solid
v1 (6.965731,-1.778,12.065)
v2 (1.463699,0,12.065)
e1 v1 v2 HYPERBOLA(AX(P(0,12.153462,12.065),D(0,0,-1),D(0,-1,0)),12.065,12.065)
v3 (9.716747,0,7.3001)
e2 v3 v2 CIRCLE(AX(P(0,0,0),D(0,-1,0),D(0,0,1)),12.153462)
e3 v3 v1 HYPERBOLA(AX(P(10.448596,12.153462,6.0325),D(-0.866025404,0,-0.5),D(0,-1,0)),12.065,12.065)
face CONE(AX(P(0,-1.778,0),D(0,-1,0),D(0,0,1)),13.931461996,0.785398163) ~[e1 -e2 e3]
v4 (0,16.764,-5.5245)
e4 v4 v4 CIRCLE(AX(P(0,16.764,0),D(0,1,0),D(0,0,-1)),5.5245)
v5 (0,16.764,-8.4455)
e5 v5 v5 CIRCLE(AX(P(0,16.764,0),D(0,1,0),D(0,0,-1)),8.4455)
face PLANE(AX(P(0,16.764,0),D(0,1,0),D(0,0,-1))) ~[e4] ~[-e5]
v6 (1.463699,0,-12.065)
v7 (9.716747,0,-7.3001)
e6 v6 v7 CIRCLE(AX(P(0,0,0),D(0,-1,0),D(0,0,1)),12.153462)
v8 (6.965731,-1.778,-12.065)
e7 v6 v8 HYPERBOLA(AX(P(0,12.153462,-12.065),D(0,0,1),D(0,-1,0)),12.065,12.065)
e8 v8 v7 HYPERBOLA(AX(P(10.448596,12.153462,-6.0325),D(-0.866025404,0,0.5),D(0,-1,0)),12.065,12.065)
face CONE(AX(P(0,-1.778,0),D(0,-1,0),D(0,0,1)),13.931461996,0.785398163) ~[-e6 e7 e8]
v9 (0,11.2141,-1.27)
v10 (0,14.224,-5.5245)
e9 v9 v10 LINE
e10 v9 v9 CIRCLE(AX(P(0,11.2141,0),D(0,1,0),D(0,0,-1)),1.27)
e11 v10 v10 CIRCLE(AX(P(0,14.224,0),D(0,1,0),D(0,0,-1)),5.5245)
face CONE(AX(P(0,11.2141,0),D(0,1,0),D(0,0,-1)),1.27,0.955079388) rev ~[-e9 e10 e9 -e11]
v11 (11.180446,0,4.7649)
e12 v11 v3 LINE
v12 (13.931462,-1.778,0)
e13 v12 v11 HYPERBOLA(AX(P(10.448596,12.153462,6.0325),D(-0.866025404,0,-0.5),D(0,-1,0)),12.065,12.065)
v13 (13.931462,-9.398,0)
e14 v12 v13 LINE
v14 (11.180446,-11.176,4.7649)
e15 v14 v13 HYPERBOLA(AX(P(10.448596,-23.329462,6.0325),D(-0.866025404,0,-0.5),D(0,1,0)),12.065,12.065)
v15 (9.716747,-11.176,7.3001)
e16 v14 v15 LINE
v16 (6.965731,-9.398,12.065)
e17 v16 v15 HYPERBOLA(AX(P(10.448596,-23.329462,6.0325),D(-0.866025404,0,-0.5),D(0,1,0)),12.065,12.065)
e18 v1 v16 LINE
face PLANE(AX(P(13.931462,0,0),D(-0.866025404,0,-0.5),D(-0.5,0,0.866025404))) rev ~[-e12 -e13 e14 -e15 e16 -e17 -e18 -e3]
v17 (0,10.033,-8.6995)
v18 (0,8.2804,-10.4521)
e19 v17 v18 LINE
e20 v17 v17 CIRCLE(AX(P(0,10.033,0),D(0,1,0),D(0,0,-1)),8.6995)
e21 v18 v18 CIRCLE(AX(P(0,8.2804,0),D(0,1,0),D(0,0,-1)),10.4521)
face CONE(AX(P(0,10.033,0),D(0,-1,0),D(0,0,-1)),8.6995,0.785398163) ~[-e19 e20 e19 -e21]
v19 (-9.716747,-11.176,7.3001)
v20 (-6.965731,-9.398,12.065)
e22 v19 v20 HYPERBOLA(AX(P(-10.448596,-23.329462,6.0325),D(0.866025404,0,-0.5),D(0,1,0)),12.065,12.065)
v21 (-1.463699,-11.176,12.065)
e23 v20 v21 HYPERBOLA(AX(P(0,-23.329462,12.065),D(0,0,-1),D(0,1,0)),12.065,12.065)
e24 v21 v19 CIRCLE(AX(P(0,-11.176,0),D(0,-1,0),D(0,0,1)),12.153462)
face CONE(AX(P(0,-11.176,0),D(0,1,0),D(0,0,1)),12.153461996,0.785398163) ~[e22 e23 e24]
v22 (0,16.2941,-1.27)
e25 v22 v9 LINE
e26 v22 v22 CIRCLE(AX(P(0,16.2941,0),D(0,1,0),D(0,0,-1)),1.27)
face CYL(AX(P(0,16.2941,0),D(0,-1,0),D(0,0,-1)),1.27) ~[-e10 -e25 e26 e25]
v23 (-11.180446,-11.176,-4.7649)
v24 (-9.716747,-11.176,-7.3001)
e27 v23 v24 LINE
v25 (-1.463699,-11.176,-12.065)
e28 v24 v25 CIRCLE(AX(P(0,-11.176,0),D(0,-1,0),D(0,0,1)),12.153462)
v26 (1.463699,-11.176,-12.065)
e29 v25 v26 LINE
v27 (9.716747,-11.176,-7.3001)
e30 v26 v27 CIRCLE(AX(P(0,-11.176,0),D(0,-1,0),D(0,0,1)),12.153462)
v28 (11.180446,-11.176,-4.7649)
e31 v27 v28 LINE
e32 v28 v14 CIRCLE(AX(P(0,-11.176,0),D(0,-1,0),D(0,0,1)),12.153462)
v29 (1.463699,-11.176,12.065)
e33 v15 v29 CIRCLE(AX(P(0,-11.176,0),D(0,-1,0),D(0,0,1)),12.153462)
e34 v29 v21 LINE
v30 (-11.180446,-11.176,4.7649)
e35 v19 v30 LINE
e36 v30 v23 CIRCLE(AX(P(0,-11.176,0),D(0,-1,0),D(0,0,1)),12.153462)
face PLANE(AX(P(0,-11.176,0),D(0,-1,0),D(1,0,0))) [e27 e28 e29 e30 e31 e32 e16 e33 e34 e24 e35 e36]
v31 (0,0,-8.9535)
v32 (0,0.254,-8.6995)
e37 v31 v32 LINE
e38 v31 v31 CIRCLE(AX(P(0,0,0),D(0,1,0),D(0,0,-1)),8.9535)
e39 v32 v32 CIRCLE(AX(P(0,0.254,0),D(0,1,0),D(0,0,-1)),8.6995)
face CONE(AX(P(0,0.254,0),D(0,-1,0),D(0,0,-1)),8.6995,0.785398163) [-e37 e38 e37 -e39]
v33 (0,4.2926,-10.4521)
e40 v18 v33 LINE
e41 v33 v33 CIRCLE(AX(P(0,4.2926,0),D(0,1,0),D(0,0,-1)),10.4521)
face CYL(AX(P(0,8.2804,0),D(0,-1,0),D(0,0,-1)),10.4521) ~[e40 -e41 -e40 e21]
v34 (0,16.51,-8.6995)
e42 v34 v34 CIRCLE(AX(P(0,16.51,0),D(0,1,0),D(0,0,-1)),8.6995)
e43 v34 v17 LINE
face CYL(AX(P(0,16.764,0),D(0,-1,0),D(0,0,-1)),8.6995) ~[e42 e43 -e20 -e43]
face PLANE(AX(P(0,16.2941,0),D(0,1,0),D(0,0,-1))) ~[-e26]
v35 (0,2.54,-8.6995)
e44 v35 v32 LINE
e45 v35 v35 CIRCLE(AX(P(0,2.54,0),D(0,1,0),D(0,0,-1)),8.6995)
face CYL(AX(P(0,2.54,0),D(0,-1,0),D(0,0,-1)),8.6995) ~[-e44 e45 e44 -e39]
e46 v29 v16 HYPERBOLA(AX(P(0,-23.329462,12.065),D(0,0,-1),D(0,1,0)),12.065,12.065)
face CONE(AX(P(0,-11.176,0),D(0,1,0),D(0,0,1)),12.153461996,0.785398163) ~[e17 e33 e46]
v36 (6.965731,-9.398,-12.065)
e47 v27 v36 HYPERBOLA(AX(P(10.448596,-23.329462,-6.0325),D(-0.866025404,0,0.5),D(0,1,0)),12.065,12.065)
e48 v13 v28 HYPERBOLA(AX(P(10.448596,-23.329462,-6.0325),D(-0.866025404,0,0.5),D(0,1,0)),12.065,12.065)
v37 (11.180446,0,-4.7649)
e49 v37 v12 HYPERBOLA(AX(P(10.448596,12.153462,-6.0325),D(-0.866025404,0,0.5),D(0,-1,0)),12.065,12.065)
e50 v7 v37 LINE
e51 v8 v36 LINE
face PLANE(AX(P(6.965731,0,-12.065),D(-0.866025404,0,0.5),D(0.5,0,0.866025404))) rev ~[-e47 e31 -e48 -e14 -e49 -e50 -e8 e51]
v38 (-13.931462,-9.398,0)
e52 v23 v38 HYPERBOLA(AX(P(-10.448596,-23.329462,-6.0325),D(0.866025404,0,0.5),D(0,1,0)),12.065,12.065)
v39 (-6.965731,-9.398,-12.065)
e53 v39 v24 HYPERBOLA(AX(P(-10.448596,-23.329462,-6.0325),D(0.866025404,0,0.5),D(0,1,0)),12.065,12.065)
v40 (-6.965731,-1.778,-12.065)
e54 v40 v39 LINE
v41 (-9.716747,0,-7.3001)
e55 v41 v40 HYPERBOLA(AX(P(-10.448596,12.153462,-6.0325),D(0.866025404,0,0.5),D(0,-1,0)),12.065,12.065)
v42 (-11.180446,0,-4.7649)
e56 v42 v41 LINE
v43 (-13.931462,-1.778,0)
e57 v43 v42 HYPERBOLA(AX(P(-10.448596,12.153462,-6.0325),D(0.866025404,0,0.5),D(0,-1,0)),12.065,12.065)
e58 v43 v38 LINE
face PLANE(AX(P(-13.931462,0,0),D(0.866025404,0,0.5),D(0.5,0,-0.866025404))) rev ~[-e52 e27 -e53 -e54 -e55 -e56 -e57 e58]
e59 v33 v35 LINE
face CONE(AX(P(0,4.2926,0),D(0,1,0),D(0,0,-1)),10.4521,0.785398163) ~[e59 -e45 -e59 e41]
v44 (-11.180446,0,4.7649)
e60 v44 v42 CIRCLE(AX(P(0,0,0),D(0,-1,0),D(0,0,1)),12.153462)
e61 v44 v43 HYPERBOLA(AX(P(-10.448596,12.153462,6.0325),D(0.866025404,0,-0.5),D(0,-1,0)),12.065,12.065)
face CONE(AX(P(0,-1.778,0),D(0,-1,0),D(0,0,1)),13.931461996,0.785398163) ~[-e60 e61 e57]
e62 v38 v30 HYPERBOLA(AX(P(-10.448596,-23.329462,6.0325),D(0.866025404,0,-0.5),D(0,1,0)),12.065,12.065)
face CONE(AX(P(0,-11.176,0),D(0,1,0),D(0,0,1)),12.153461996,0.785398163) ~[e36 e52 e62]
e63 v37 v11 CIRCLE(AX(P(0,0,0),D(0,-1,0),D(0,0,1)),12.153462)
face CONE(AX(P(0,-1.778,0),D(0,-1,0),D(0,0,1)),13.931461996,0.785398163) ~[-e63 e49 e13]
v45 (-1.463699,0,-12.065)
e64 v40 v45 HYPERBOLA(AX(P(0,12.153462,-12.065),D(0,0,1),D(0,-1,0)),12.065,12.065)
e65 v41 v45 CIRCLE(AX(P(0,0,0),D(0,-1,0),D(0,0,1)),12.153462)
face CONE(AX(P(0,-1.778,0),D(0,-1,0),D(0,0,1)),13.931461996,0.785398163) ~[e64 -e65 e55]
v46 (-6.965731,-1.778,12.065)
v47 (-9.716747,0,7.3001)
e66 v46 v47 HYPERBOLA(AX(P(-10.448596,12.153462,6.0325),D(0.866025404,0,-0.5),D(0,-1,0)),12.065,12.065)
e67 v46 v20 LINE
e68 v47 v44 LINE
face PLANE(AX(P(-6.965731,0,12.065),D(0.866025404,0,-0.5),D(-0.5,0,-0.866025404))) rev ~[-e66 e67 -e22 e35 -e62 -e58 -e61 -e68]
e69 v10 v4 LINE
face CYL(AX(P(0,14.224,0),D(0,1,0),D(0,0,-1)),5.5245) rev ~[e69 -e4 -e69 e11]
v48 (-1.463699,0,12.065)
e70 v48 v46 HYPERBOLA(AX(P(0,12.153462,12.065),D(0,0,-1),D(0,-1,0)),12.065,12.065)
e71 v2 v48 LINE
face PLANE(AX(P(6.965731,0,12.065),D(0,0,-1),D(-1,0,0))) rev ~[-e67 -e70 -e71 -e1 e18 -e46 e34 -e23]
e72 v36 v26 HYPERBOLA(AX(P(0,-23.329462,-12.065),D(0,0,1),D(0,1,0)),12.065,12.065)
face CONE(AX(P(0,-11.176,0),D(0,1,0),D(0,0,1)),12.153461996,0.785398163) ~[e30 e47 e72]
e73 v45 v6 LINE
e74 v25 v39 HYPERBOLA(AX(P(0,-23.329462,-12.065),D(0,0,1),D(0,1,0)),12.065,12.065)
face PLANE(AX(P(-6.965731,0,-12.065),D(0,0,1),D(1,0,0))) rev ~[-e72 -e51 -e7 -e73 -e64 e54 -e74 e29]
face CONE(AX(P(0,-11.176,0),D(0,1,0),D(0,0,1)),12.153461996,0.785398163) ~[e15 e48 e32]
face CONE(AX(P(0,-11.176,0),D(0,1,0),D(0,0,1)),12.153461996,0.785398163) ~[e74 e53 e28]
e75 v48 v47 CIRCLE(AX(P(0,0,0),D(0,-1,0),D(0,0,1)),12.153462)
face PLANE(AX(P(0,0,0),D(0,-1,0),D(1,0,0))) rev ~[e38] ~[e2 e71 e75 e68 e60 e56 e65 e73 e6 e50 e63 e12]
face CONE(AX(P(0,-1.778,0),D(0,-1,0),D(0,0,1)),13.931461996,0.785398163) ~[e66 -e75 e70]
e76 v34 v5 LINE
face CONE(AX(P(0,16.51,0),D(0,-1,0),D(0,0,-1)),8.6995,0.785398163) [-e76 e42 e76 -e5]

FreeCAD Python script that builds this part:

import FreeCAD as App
import Part
import Sketcher
from FreeCAD import Vector
Q = App.Units.Quantity


def edges_at(feature, points):
    """Names of the edges that pass closest to the given points."""
    edges = feature.Shape.Edges
    near = lambda p: min(range(len(edges)), key=lambda i: edges[i].distToShape(Part.Vertex(*p))[0])
    return sorted({f"Edge{near(p) + 1}" for p in points})

doc = App.newDocument("Part")
body = doc.addObject("PartDesign::Body", "Body")

# Sketch on XY plane
sketch1 = body.newObject("Sketcher::SketchObject", "Sketch")
sketch1.AttachmentSupport = (doc.getObject("XY_Plane"), [""])
sketch1.MapMode = "FlatFace"
sketch1.addGeometry(Part.LineSegment(Vector(0, 16.3, 0), Vector(0, 0, 0)), False)
sketch1.addGeometry(Part.LineSegment(Vector(0, 0, 0), Vector(8.7, 0, 0)), False)
sketch1.addGeometry(Part.LineSegment(Vector(8.7, 0, 0), Vector(8.7, 2.5, 0)), False)
sketch1.addGeometry(Part.LineSegment(Vector(8.7, 2.5, 0), Vector(10.5, 4.3, 0)), False)
sketch1.addGeometry(Part.LineSegment(Vector(10.5, 4.3, 0), Vector(10.5, 8.3, 0)), False)
sketch1.addGeometry(Part.LineSegment(Vector(10.5, 8.3, 0), Vector(8.7, 10, 0)), False)
sketch1.addGeometry(Part.LineSegment(Vector(8.7, 10, 0), Vector(8.7, 16.8, 0)), False)
sketch1.addGeometry(Part.LineSegment(Vector(8.7, 16.8, 0), Vector(5.5, 16.8, 0)), False)
sketch1.addGeometry(Part.LineSegment(Vector(5.5, 16.8, 0), Vector(5.5, 14.2, 0)), False)
sketch1.addGeometry(Part.LineSegment(Vector(5.5, 14.2, 0), Vector(1.3, 11.2, 0)), False)
sketch1.addGeometry(Part.LineSegment(Vector(1.3, 11.2, 0), Vector(1.3, 16.3, 0)), False)
sketch1.addGeometry(Part.LineSegment(Vector(1.3, 16.3, 0), Vector(0, 16.3, 0)), False)
sketch1.addConstraint(Sketcher.Constraint("Coincident", 0, 2, 1, 1))
sketch1.addConstraint(Sketcher.Constraint("Coincident", 1, 2, 2, 1))
sketch1.addConstraint(Sketcher.Constraint("Coincident", 2, 2, 3, 1))
sketch1.addConstraint(Sketcher.Constraint("Coincident", 3, 2, 4, 1))
sketch1.addConstraint(Sketcher.Constraint("Coincident", 4, 2, 5, 1))
sketch1.addConstraint(Sketcher.Constraint("Coincident", 5, 2, 6, 1))
sketch1.addConstraint(Sketcher.Constraint("Coincident", 6, 2, 7, 1))
sketch1.addConstraint(Sketcher.Constraint("Coincident", 7, 2, 8, 1))
sketch1.addConstraint(Sketcher.Constraint("Coincident", 8, 2, 9, 1))
sketch1.addConstraint(Sketcher.Constraint("Coincident", 9, 2, 10, 1))
sketch1.addConstraint(Sketcher.Constraint("Coincident", 10, 2, 11, 1))
sketch1.addConstraint(Sketcher.Constraint("Coincident", 11, 2, 0, 1))
sketch1.addConstraint(Sketcher.Constraint("Vertical", 0))
sketch1.addConstraint(Sketcher.Constraint("Horizontal", 1))
sketch1.addConstraint(Sketcher.Constraint("Vertical", 2))
sketch1.addConstraint(Sketcher.Constraint("Vertical", 4))
sketch1.addConstraint(Sketcher.Constraint("Vertical", 6))
sketch1.addConstraint(Sketcher.Constraint("Horizontal", 7))
sketch1.addConstraint(Sketcher.Constraint("Vertical", 8))
sketch1.addConstraint(Sketcher.Constraint("Vertical", 10))
sketch1.addConstraint(Sketcher.Constraint("Horizontal", 11))
sketch1.addConstraint(Sketcher.Constraint("Coincident", 0, 2, -1, 1))
sketch1.addConstraint(Sketcher.Constraint("Perpendicular", 3, 5))
sketch1.addConstraint(Sketcher.Constraint("Vertical", 2, 2, 5, 2))
sketch1.addConstraint(Sketcher.Constraint("Equal", 2, 8))
sketch1.addConstraint(Sketcher.Constraint("Equal", 3, 5))
sketch1.addConstraint(Sketcher.Constraint("DistanceY", 2, 1, 2, 2, Q("0.1 in")))
sketch1.addConstraint(Sketcher.Constraint("DistanceY", 10, 1, 10, 2, Q("0.2 in")))
sketch1.addConstraint(Sketcher.Constraint("DistanceX", 11, 2, 11, 1, Q("0.05 in")))
sketch1.addConstraint(Sketcher.Constraint("DistanceX", 7, 2, 7, 1, Q("0.125 in")))
sketch1.addConstraint(Sketcher.Constraint("DistanceY", 4, 1, 4, 2, Q("0.157 in")))
sketch1.addConstraint(Sketcher.Constraint("DistanceY", 6, 1, 6, 2, Q("0.265 in")))
sketch1.addConstraint(Sketcher.Constraint("DistanceY", -1, 1, 6, 2, Q("0.66 in")))
sketch1.addConstraint(Sketcher.Constraint("DistanceX", 1, 1, 1, 2, Q("0.3425 in")))
sketch1.addConstraint(Sketcher.Constraint("DistanceY", 0, 2, 0, 1, Q("0.6415 in")))
revolution = body.newObject("PartDesign::Revolution", "Revolution")
revolution.Profile = sketch1
revolution.ReferenceAxis = (sketch1, ["V_Axis"])
revolution.Angle = 360

# Sketch on XZ plane
sketch2 = body.newObject("Sketcher::SketchObject", "Sketch001")
sketch2.AttachmentSupport = (doc.getObject("XZ_Plane"), [""])
sketch2.MapMode = "FlatFace"
sketch2.addGeometry(Part.LineSegment(Vector(14, 0, 0), Vector(7, 12, 0)), False)
sketch2.addGeometry(Part.LineSegment(Vector(7, 12, 0), Vector(-7, 12, 0)), False)
sketch2.addGeometry(Part.LineSegment(Vector(-7, 12, 0), Vector(-14, 0, 0)), False)
sketch2.addGeometry(Part.LineSegment(Vector(-14, 0, 0), Vector(-7, -12, 0)), False)
sketch2.addGeometry(Part.LineSegment(Vector(-7, -12, 0), Vector(7, -12, 0)), False)
sketch2.addGeometry(Part.LineSegment(Vector(7, -12, 0), Vector(14, 0, 0)), False)
sketch2.addConstraint(Sketcher.Constraint("Coincident", 0, 2, 1, 1))
sketch2.addConstraint(Sketcher.Constraint("Coincident", 1, 2, 2, 1))
sketch2.addConstraint(Sketcher.Constraint("Coincident", 2, 2, 3, 1))
sketch2.addConstraint(Sketcher.Constraint("Coincident", 3, 2, 4, 1))
sketch2.addConstraint(Sketcher.Constraint("Coincident", 4, 2, 5, 1))
sketch2.addConstraint(Sketcher.Constraint("Coincident", 5, 2, 0, 1))
sketch2.addConstraint(Sketcher.Constraint("Horizontal", 1))
sketch2.addConstraint(Sketcher.Constraint("Horizontal", 4))
sketch2.addConstraint(Sketcher.Constraint("Symmetric", 0, 2, 3, 2, -1, 1))
sketch2.addConstraint(Sketcher.Constraint("Symmetric", 2, 2, 5, 2, -1, 1))
sketch2.addConstraint(Sketcher.Constraint("PointOnObject", 2, 2, -1))
sketch2.addConstraint(Sketcher.Constraint("Parallel", 2, 5))
sketch2.addConstraint(Sketcher.Constraint("Vertical", 1, 2, 3, 2))
sketch2.addConstraint(Sketcher.Constraint("Angle", 0, Q("120 deg")))
sketch2.addConstraint(Sketcher.Constraint("DistanceY", 3, 2, 1, 2, Q("0.95 in")))
sketch2.addConstraint(Sketcher.Constraint("DistanceX", 1, 2, 1, 1, Q("13.931462 mm")))
pad1 = body.newObject("PartDesign::Pad", "Pad")
pad1.Profile = sketch2
pad1.Length = Q("0.44 in")

# Sketch on XY plane
sketch3 = body.newObject("Sketcher::SketchObject", "Sketch002")
sketch3.AttachmentSupport = (doc.getObject("XY_Plane"), [""])
sketch3.MapMode = "FlatFace"
sketch3.addGeometry(Part.LineSegment(Vector(12.2, 0, 0), Vector(13.9, -1.8, 0)), False)
sketch3.addGeometry(Part.LineSegment(Vector(13.9, -1.8, 0), Vector(13.9, -9.4, 0)), False)
sketch3.addGeometry(Part.LineSegment(Vector(13.9, -9.4, 0), Vector(12.2, -11.2, 0)), False)
sketch3.addGeometry(Part.LineSegment(Vector(12.2, -11.2, 0), Vector(16.6, -11.2, 0)), False)
sketch3.addGeometry(Part.LineSegment(Vector(16.6, -11.2, 0), Vector(16.6, 0, 0)), False)
sketch3.addGeometry(Part.LineSegment(Vector(16.6, 0, 0), Vector(12.2, 0, 0)), False)
sketch3.addConstraint(Sketcher.Constraint("Coincident", 0, 2, 1, 1))
sketch3.addConstraint(Sketcher.Constraint("Coincident", 1, 2, 2, 1))
sketch3.addConstraint(Sketcher.Constraint("Coincident", 2, 2, 3, 1))
sketch3.addConstraint(Sketcher.Constraint("Coincident", 3, 2, 4, 1))
sketch3.addConstraint(Sketcher.Constraint("Coincident", 4, 2, 5, 1))
sketch3.addConstraint(Sketcher.Constraint("Coincident", 5, 2, 0, 1))
sketch3.addConstraint(Sketcher.Constraint("Vertical", 1))
sketch3.addConstraint(Sketcher.Constraint("Horizontal", 3))
sketch3.addConstraint(Sketcher.Constraint("Vertical", 4))
sketch3.addConstraint(Sketcher.Constraint("Horizontal", 5))
sketch3.addConstraint(Sketcher.Constraint("PointOnObject", 4, 2, -1))
sketch3.addConstraint(Sketcher.Constraint("Perpendicular", 0, 2))
sketch3.addConstraint(Sketcher.Constraint("Vertical", 2, 2, 5, 2))
sketch3.addConstraint(Sketcher.Constraint("Equal", 0, 2))
sketch3.addConstraint(Sketcher.Constraint("DistanceY", 1, 2, 1, 1, Q("0.3 in")))
sketch3.addConstraint(Sketcher.Constraint("DistanceY", 4, 1, 4, 2, Q("0.44 in")))
sketch3.addConstraint(Sketcher.Constraint("DistanceX", 3, 1, 3, 2, Q("4.436225 mm")))
sketch3.addConstraint(Sketcher.Constraint("DistanceX", -1, 1, 0, 2, Q("13.931462 mm")))
groove = body.newObject("PartDesign::Groove", "Groove")
groove.Profile = sketch3
groove.ReferenceAxis = (sketch3, ["V_Axis"])
groove.Angle = 360
doc.recompute()

chamfer = body.newObject("PartDesign::Chamfer", "Chamfer")
chamfer.Base = (groove, edges_at(groove, [(0, 16.764, 8.7), (0, 0, 8.7)]))
chamfer.Size = Q("0.01 in")

doc.recompute()
